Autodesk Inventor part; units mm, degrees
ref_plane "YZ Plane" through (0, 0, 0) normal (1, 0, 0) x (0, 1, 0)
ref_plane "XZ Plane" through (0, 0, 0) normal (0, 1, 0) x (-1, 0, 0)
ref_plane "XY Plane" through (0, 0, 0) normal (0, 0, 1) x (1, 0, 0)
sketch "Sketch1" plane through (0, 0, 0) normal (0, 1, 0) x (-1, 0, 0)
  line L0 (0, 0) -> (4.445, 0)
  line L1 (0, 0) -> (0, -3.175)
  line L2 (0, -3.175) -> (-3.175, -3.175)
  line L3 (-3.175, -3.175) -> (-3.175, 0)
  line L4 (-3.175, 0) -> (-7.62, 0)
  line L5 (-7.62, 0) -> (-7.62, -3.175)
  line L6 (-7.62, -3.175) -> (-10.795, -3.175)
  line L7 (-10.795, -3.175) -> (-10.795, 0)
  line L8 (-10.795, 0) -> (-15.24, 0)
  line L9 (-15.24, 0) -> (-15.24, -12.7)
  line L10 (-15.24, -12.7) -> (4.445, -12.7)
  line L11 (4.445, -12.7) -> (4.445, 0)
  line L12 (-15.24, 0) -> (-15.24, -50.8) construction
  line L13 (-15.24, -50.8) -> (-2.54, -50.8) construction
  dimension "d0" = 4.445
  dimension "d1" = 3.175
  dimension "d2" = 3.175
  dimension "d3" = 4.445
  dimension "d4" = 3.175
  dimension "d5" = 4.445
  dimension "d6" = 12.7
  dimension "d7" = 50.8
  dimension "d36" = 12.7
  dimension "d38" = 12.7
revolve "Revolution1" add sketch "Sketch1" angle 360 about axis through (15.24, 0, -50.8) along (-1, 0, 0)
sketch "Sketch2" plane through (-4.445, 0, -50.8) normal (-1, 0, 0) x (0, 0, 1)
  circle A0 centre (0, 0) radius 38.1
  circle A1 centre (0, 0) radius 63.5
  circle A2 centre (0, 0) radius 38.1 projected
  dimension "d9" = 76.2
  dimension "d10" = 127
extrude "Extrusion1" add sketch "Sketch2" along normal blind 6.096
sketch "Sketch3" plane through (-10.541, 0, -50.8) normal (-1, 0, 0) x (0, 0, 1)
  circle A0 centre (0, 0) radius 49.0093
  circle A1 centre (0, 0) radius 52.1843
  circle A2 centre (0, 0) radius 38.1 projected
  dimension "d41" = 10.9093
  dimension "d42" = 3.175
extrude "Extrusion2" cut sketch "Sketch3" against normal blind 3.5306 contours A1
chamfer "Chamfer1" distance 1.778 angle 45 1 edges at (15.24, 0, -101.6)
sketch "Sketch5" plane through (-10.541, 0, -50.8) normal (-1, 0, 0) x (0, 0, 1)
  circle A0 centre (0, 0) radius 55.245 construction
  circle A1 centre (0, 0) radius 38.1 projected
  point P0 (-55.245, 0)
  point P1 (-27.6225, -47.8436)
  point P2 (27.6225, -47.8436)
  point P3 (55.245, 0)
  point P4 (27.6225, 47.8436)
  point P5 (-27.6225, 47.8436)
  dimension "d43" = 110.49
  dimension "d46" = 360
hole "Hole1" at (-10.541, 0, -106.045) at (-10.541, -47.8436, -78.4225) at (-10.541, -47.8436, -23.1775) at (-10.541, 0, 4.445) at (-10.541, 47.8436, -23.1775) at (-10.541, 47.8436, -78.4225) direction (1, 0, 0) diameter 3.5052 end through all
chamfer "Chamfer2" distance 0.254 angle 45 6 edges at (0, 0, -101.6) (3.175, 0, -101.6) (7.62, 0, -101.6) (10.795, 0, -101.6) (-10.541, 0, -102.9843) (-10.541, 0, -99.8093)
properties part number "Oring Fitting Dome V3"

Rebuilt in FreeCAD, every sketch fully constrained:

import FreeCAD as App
import Part
import Sketcher

V = App.Vector
Q = App.Units.Quantity


def edges_at(feature, points):
    """Names of the edges that pass closest to the given points."""
    edges = feature.Shape.Edges
    near = lambda p: min(range(len(edges)), key=lambda i: edges[i].distToShape(Part.Vertex(*p))[0])
    return sorted({f"Edge{near(p) + 1}" for p in points})


def add_polygon(sketch, points):
    """Adds a closed chain of lines whose ends are joined by coincident constraints."""
    first, n = sketch.GeometryCount, len(points)
    for a, b in zip(points, points[1:] + points[:1]):
        sketch.addGeometry(Part.LineSegment(App.Vector(*a, 0), App.Vector(*b, 0)), False)
    for i in range(n):
        sketch.addConstraint(Sketcher.Constraint("Coincident", first + i, 2, first + (i + 1) % n, 1))

doc = App.newDocument("Part")
body = doc.addObject("PartDesign::Body", "Body")

# Sketch on XZ plane
sketch1 = body.newObject("Sketcher::SketchObject", "Sketch")
sketch1.AttachmentSupport = (doc.getObject("XZ_Plane"), [""])
sketch1.MapMode = "FlatFace"
add_polygon(sketch1, [(-4.4, 0), (0, 0), (0, -3.2), (3.2, -3.2), (3.2, 0), (7.6, 0), (7.6, -3.2), (10.8, -3.2), (10.8, 0), (15.2, 0), (15.2, -12.7), (-4.4, -12.7)])  # lines 0-11
sketch1.addGeometry(Part.LineSegment(V(15.2, -50.8, 0), V(-4.4, -50.8, 0)), True)  # axis
sketch1.addConstraint(Sketcher.Constraint("Horizontal", 0))
sketch1.addConstraint(Sketcher.Constraint("Vertical", 1))
sketch1.addConstraint(Sketcher.Constraint("Horizontal", 2))
sketch1.addConstraint(Sketcher.Constraint("Vertical", 3))
sketch1.addConstraint(Sketcher.Constraint("Horizontal", 4))
sketch1.addConstraint(Sketcher.Constraint("Vertical", 5))
sketch1.addConstraint(Sketcher.Constraint("Horizontal", 6))
sketch1.addConstraint(Sketcher.Constraint("Vertical", 7))
sketch1.addConstraint(Sketcher.Constraint("Horizontal", 8))
sketch1.addConstraint(Sketcher.Constraint("Vertical", 9))
sketch1.addConstraint(Sketcher.Constraint("Horizontal", 10))
sketch1.addConstraint(Sketcher.Constraint("Vertical", 11))
sketch1.addConstraint(Sketcher.Constraint("Horizontal", 12))
sketch1.addConstraint(Sketcher.Constraint("Coincident", 0, 2, -1, 1))
sketch1.addConstraint(Sketcher.Constraint("PointOnObject", 3, 2, -1))
sketch1.addConstraint(Sketcher.Constraint("PointOnObject", 7, 2, -1))
sketch1.addConstraint(Sketcher.Constraint("Horizontal", 2, 2, 5, 2))
sketch1.addConstraint(Sketcher.Constraint("Vertical", 9, 2, 12, 1))
sketch1.addConstraint(Sketcher.Constraint("Vertical", 11, 2, 12, 2))
sketch1.addConstraint(Sketcher.Constraint("Equal", 0, 4))
sketch1.addConstraint(Sketcher.Constraint("Equal", 2, 6))
sketch1.addConstraint(Sketcher.Constraint("Equal", 4, 8))
sketch1.addConstraint(Sketcher.Constraint("Equal", 6, 1))
sketch1.addConstraint(Sketcher.Constraint("DistanceY", 9, 2, 9, 1, Q("0.5 in")))
sketch1.addConstraint(Sketcher.Constraint("DistanceY", 12, 1, -1, 1, Q("2 in")))
sketch1.addConstraint(Sketcher.Constraint("DistanceX", 0, 1, 0, 2, Q("0.175 in")))
sketch1.addConstraint(Sketcher.Constraint("DistanceX", 2, 1, 2, 2, Q("0.125 in")))
revolution = body.newObject("PartDesign::Revolution", "Revolution")
revolution.Profile = sketch1
revolution.ReferenceAxis = (sketch1, ["Axis0"])
revolution.Angle = 360

# Sketch on YZ plane
sketch2 = body.newObject("Sketcher::SketchObject", "Sketch001")
sketch2.AttachmentSupport = (doc.getObject("YZ_Plane"), [""])
sketch2.MapMode = "FlatFace"
sketch2.AttachmentOffset = App.Placement(V(0, 0, -0.175 * 25.4), App.Rotation())
sketch2.addGeometry(Part.Circle(V(0, -51, 0), V(0, 0, 1), 64), False)
sketch2.addGeometry(Part.Circle(V(0, -51, 0), V(0, 0, 1), 38), False)
sketch2.addConstraint(Sketcher.Constraint("Coincident", 1, 3, 0, 3))
sketch2.addConstraint(Sketcher.Constraint("PointOnObject", 0, 3, -2))
sketch2.addConstraint(Sketcher.Constraint("Diameter", 0, Q("5 in")))
sketch2.addConstraint(Sketcher.Constraint("Diameter", 1, Q("3 in")))
sketch2.addConstraint(Sketcher.Constraint("DistanceY", 0, 3, -1, 1, Q("2 in")))
pad1 = body.newObject("PartDesign::Pad", "Pad")
pad1.Profile = sketch2
pad1.Length = Q("0.24 in")
pad1.Reversed = True

# Sketch on YZ plane
sketch3 = body.newObject("Sketcher::SketchObject", "Sketch002")
sketch3.AttachmentSupport = (doc.getObject("YZ_Plane"), [""])
sketch3.MapMode = "FlatFace"
sketch3.AttachmentOffset = App.Placement(V(0, 0, -0.415 * 25.4), App.Rotation())
sketch3.addGeometry(Part.Circle(V(0, -51, 0), V(0, 0, 1), 52), False)
sketch3.addGeometry(Part.Circle(V(0, -51, 0), V(0, 0, 1), 49), False)
sketch3.addConstraint(Sketcher.Constraint("Coincident", 1, 3, 0, 3))
sketch3.addConstraint(Sketcher.Constraint("PointOnObject", 0, 3, -2))
sketch3.addConstraint(Sketcher.Constraint("Diameter", 0, Q("4.109 in")))
sketch3.addConstraint(Sketcher.Constraint("Diameter", 1, Q("3.859 in")))
sketch3.addConstraint(Sketcher.Constraint("DistanceY", 0, 3, -1, 1, Q("2 in")))
pocket1 = body.newObject("PartDesign::Pocket", "Pocket")
pocket1.Profile = sketch3
pocket1.Length = Q("0.139 in")
pocket1.Reversed = True
doc.recompute()

chamfer = body.newObject("PartDesign::Chamfer", "Chamfer")
chamfer.Base = (pocket1, edges_at(pocket1, [(15.24, 0, -101.6)]))
chamfer.Size = Q("0.07 in")

# Sketch on YZ plane
sketch4 = body.newObject("Sketcher::SketchObject", "Sketch003")
sketch4.AttachmentSupport = (doc.getObject("YZ_Plane"), [""])
sketch4.MapMode = "FlatFace"
sketch4.AttachmentOffset = App.Placement(V(0, 0, -0.415 * 25.4), App.Rotation())
sketch4.addGeometry(Part.Circle(V(0, -106, 0), V(0, 0, 1), 1.8), False)
sketch4.addGeometry(Part.Circle(V(-47.8, -78.4, 0), V(0, 0, 1), 1.8), False)
sketch4.addGeometry(Part.Circle(V(-47.8, -23.2, 0), V(0, 0, 1), 1.8), False)
sketch4.addGeometry(Part.Circle(V(0, 4.4, 0), V(0, 0, 1), 1.8), False)
sketch4.addGeometry(Part.Circle(V(47.8, -23.2, 0), V(0, 0, 1), 1.8), False)
sketch4.addGeometry(Part.Circle(V(47.8, -78.4, 0), V(0, 0, 1), 1.8), False)
sketch4.addConstraint(Sketcher.Constraint("Equal", 0, 1))
sketch4.addConstraint(Sketcher.Constraint("Equal", 1, 2))
sketch4.addConstraint(Sketcher.Constraint("Equal", 2, 3))
sketch4.addConstraint(Sketcher.Constraint("Equal", 3, 4))
sketch4.addConstraint(Sketcher.Constraint("Equal", 4, 5))
sketch4.addConstraint(Sketcher.Constraint("Symmetric", 2, 3, 4, 3, -2))
sketch4.addConstraint(Sketcher.Constraint("Symmetric", 1, 3, 5, 3, -2))
sketch4.addConstraint(Sketcher.Constraint("PointOnObject", 0, 3, -2))
sketch4.addConstraint(Sketcher.Constraint("PointOnObject", 3, 3, -2))
sketch4.addConstraint(Sketcher.Constraint("Vertical", 1, 3, 2, 3))
sketch4.addConstraint(Sketcher.Constraint("Diameter", 0, Q("0.138 in")))
sketch4.addConstraint(Sketcher.Constraint("DistanceY", 0, 3, 3, 3, Q("4.35 in")))
sketch4.addConstraint(Sketcher.Constraint("DistanceY", 0, 3, -1, 1, Q("4.175 in")))
sketch4.addConstraint(Sketcher.Constraint("DistanceY", 1, 3, 2, 3, Q("2.175 in")))
sketch4.addConstraint(Sketcher.Constraint("DistanceX", 1, 3, -1, 1, Q("1.8836 in")))
sketch4.addConstraint(Sketcher.Constraint("DistanceY", 1, 3, -1, 1, Q("3.0875 in")))
doc.recompute()
hole = body.newObject("PartDesign::Hole", "Hole")
hole.Profile = sketch4
hole.ThreadType = "None"
hole.Diameter = Q("0.138 in")
hole.DepthType = "ThroughAll"
hole.Reversed = True
doc.recompute()

chamfer2 = body.newObject("PartDesign::Chamfer", "Chamfer001")
chamfer2.Base = (hole, edges_at(hole, [
    (0, 0, -101.6),
    (3.175, 0, -101.6),
    (7.62, 0, -101.6),
    (10.795, 0, -101.6),
    (-10.541, 0, -102.984),
    (-10.541, 0, -99.809),
]))
chamfer2.Size = Q("0.01 in")

doc.recompute()
